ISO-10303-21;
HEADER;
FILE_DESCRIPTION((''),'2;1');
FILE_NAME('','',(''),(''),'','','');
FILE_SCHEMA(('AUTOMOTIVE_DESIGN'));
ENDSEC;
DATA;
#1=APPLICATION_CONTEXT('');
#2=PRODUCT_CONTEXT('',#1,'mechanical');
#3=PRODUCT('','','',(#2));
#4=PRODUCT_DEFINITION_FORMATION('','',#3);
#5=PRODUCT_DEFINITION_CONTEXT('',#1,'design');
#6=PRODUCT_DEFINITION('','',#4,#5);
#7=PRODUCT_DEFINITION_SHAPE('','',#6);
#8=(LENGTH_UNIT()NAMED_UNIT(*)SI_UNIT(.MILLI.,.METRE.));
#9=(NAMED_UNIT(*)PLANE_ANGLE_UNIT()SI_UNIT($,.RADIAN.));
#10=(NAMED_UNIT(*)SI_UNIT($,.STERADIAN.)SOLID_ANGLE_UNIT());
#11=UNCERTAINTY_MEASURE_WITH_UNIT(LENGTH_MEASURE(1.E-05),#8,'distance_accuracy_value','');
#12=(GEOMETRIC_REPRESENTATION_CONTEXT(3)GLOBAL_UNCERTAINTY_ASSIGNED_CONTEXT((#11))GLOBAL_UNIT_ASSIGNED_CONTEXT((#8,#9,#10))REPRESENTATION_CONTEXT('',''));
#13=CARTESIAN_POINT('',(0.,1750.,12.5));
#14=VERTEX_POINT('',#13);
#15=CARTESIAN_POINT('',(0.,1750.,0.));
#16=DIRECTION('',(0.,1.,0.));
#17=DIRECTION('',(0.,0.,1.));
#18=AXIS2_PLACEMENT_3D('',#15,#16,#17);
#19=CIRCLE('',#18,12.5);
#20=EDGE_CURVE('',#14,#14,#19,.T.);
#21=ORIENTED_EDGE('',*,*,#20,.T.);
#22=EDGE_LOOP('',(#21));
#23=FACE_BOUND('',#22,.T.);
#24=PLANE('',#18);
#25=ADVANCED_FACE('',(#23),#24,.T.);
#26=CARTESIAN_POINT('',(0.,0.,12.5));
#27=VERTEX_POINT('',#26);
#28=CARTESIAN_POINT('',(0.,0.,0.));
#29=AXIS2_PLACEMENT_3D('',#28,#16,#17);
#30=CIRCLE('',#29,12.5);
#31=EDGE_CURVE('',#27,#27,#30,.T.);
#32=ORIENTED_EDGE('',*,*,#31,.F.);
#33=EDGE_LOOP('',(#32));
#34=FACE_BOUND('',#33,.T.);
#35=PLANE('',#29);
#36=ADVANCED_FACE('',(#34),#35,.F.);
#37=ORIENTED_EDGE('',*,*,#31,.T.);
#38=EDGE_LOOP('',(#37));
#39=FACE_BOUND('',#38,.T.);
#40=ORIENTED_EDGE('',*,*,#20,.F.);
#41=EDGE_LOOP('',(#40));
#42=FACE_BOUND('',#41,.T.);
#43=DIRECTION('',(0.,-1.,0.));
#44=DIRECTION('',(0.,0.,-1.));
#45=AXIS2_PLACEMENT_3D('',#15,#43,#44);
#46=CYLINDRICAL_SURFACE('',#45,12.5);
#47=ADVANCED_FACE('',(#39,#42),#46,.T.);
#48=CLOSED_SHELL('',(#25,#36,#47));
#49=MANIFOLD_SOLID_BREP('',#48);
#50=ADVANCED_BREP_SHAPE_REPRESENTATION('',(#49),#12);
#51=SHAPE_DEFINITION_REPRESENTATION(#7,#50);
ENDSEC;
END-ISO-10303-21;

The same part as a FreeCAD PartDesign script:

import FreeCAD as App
import Part
import Sketcher
Q = App.Units.Quantity

doc = App.newDocument("Part")
body = doc.addObject("PartDesign::Body", "Body")

# Sketch on XZ plane
sketch1 = doc.addObject("Sketcher::SketchObject", "Sketch")
body.addObject(sketch1)
sketch1.AttachmentSupport = (doc.XZ_Plane, [""])
sketch1.MapMode = "FlatFace"
sketch1.addGeometry(Part.Circle(App.Vector(0, 0, 0), App.Vector(0, 0, 1), 12), False)
sketch1.addConstraint(Sketcher.Constraint("Coincident", 0, 3, -1, 1))
sketch1.addConstraint(Sketcher.Constraint("Diameter", 0, Q("25 mm")))
pad1 = doc.addObject("PartDesign::Pad", "Pad")
body.addObject(pad1)
pad1.Profile = sketch1
pad1.Length = 1750
pad1.Reversed = True

doc.recompute()
